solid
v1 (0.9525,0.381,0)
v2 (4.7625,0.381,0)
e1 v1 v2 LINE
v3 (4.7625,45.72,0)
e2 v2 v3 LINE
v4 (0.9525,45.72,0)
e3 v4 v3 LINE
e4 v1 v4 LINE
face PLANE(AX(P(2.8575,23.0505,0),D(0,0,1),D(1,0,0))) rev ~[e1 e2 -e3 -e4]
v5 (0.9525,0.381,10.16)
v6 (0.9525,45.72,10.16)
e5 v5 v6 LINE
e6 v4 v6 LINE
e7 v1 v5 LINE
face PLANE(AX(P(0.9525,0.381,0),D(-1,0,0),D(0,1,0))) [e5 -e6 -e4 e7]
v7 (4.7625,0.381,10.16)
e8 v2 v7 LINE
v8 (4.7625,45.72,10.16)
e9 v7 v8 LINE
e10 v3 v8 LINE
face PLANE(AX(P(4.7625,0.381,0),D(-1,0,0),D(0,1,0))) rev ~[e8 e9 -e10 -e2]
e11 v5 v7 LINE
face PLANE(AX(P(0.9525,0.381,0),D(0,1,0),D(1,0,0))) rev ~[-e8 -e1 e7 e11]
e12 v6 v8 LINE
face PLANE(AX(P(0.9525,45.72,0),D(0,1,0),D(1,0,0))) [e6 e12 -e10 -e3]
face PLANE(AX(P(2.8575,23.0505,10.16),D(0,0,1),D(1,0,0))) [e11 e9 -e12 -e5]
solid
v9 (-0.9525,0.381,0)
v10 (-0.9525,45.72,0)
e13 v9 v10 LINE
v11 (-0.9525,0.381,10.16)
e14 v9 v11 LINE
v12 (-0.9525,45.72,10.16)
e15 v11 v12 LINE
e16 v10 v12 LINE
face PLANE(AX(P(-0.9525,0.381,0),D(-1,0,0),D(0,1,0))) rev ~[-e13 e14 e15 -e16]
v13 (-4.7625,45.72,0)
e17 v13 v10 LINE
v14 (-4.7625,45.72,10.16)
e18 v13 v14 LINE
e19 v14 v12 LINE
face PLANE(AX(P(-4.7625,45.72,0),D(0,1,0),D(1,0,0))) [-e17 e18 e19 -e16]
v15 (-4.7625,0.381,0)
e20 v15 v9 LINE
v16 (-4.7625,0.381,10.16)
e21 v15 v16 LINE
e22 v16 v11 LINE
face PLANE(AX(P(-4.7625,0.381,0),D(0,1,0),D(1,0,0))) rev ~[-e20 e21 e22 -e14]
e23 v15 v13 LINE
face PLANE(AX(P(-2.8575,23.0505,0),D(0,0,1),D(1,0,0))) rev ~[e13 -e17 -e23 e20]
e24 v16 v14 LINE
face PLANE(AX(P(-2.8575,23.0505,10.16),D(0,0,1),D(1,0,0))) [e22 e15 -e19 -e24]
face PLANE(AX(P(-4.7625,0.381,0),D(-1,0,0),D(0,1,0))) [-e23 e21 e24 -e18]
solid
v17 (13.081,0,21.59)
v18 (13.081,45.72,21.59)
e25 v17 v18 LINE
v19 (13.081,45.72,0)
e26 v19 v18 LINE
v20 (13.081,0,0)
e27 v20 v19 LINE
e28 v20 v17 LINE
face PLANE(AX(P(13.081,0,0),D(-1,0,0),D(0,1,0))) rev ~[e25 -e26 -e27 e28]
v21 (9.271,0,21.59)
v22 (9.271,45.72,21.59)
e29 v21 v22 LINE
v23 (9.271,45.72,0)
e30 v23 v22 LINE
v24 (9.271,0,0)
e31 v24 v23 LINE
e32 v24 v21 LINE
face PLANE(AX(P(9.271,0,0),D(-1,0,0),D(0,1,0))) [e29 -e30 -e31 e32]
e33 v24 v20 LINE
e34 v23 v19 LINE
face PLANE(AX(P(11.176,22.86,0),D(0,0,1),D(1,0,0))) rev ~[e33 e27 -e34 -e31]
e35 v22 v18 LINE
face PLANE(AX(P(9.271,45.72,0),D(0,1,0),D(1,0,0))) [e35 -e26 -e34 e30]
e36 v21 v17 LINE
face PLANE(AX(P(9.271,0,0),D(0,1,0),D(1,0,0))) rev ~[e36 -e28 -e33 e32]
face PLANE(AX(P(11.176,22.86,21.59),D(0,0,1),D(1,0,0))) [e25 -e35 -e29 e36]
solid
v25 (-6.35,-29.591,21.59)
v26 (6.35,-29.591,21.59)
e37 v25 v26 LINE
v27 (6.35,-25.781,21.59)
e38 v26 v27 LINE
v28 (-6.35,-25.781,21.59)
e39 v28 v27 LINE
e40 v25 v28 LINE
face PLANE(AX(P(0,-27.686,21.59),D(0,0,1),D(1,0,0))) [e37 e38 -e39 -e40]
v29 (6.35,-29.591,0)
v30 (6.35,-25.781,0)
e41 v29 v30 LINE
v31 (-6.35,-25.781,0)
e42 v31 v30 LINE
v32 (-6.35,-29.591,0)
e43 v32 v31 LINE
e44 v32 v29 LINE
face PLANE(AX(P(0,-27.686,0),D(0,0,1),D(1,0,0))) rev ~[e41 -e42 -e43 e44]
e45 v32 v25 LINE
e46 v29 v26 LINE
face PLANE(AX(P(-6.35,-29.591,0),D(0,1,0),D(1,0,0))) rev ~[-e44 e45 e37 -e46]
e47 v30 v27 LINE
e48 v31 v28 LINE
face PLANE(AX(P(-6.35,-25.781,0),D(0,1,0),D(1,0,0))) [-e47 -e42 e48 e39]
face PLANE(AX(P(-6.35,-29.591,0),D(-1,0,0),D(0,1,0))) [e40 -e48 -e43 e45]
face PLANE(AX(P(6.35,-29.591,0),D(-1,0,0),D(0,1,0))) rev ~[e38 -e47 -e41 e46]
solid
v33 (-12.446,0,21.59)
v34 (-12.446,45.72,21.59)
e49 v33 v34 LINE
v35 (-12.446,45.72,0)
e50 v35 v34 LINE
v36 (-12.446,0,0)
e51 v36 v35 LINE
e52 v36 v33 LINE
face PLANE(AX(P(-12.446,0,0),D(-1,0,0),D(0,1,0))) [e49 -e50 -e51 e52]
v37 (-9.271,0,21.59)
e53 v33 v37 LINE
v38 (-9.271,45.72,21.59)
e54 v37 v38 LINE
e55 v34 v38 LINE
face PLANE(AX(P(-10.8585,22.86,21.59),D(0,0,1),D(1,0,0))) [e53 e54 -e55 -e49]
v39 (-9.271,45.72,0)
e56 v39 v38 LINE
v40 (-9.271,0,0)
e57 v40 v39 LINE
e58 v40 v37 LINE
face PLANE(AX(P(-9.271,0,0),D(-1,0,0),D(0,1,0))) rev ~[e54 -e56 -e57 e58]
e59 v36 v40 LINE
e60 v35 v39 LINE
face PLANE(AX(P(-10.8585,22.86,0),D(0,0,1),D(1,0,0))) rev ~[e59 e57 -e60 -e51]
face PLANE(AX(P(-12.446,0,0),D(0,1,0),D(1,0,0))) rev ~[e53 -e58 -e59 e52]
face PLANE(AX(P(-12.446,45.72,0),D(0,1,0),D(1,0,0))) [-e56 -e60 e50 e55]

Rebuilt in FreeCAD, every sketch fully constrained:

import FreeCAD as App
import Part
import Sketcher

V = App.Vector
Q = App.Units.Quantity

doc = App.newDocument("Part")
body = doc.addObject("PartDesign::Body", "Body")
body.AllowCompound = True

# Sketch on XY plane
sketch1 = body.newObject("Sketcher::SketchObject", "Sketch")
sketch1.AttachmentSupport = (doc.getObject("XY_Plane"), [""])
sketch1.MapMode = "FlatFace"
sketch1.addGeometry([
    Part.LineSegment(V(-6.3, -25.8, 0), V(-6.3, -29.6, 0)),  # 0
    Part.LineSegment(V(-6.3, -29.6, 0), V(6.3, -29.6, 0)),  # 1
    Part.LineSegment(V(6.3, -29.6, 0), V(6.3, -25.8, 0)),  # 2
    Part.LineSegment(V(6.3, -25.8, 0), V(-6.3, -25.8, 0)),  # 3
    Part.LineSegment(V(-12.4, 45.7, 0), V(-12.4, 0, 0)),  # 4
    Part.LineSegment(V(-12.4, 0, 0), V(-9.3, 0, 0)),  # 5
    Part.LineSegment(V(-9.3, 0, 0), V(-9.3, 45.7, 0)),  # 6
    Part.LineSegment(V(-9.3, 45.7, 0), V(-12.4, 45.7, 0)),  # 7
    Part.LineSegment(V(9.3, 45.7, 0), V(9.3, 0, 0)),  # 8
    Part.LineSegment(V(9.3, 0, 0), V(13.1, 0, 0)),  # 9
    Part.LineSegment(V(13.1, 0, 0), V(13.1, 45.7, 0)),  # 10
    Part.LineSegment(V(13.1, 45.7, 0), V(9.3, 45.7, 0)),  # 11
], False)
sketch1.addConstraint([
    Sketcher.Constraint("Coincident", 0, 2, 1, 1),
    Sketcher.Constraint("Coincident", 1, 2, 2, 1),
    Sketcher.Constraint("Coincident", 2, 2, 3, 1),
    Sketcher.Constraint("Coincident", 3, 2, 0, 1),
    Sketcher.Constraint("Coincident", 4, 2, 5, 1),
    Sketcher.Constraint("Coincident", 5, 2, 6, 1),
    Sketcher.Constraint("Coincident", 6, 2, 7, 1),
    Sketcher.Constraint("Coincident", 7, 2, 4, 1),
    Sketcher.Constraint("Coincident", 8, 2, 9, 1),
    Sketcher.Constraint("Coincident", 9, 2, 10, 1),
    Sketcher.Constraint("Coincident", 10, 2, 11, 1),
    Sketcher.Constraint("Coincident", 11, 2, 8, 1),
    Sketcher.Constraint("Vertical", 0),
    Sketcher.Constraint("Horizontal", 1),
    Sketcher.Constraint("Vertical", 2),
    Sketcher.Constraint("Horizontal", 3),
    Sketcher.Constraint("Vertical", 4),
    Sketcher.Constraint("Horizontal", 5),
    Sketcher.Constraint("Vertical", 6),
    Sketcher.Constraint("Horizontal", 7),
    Sketcher.Constraint("Vertical", 8),
    Sketcher.Constraint("Horizontal", 9),
    Sketcher.Constraint("Vertical", 10),
    Sketcher.Constraint("Horizontal", 11),
    Sketcher.Constraint("Symmetric", 5, 2, 8, 2, -1, 1),
    Sketcher.Constraint("PointOnObject", 4, 2, -1),
    Sketcher.Constraint("Horizontal", 7, 2, 10, 2),
    Sketcher.Constraint("Equal", 11, 0),
    Sketcher.Constraint("DistanceX", 1, 1, 1, 2, Q("0.5 in")),
    Sketcher.Constraint("DistanceY", 4, 2, 4, 1, Q("1.8 in")),
    Sketcher.Constraint("DistanceX", 9, 1, 9, 2, Q("0.15 in")),
    Sketcher.Constraint("DistanceX", 5, 1, 5, 2, Q("0.125 in")),
    Sketcher.Constraint("DistanceX", 0, 2, -1, 1, Q("0.25 in")),
    Sketcher.Constraint("DistanceX", 4, 2, -1, 1, Q("0.49 in")),
    Sketcher.Constraint("DistanceY", 0, 2, -1, 1, Q("1.165 in")),
])
pad1 = body.newObject("PartDesign::Pad", "Pad")
pad1.Profile = sketch1
pad1.Length = Q("0.85 in")
body2 = doc.addObject("PartDesign::Body", "Body001")
body2.AllowCompound = True

# Sketch on XY plane
sketch2 = body2.newObject("Sketcher::SketchObject", "Sketch001")
sketch2.AttachmentSupport = (doc.getObject("XY_Plane001"), [""])
sketch2.MapMode = "FlatFace"
sketch2.addGeometry([
    Part.LineSegment(V(-4.8, 45.7, 0), V(-4.8, 0.4, 0)),  # 0
    Part.LineSegment(V(-4.8, 0.4, 0), V(-1, 0.4, 0)),  # 1
    Part.LineSegment(V(-1, 0.4, 0), V(-1, 45.7, 0)),  # 2
    Part.LineSegment(V(-1, 45.7, 0), V(-4.8, 45.7, 0)),  # 3
    Part.LineSegment(V(1, 45.7, 0), V(1, 0.4, 0)),  # 4
    Part.LineSegment(V(1, 0.4, 0), V(4.8, 0.4, 0)),  # 5
    Part.LineSegment(V(4.8, 0.4, 0), V(4.8, 45.7, 0)),  # 6
    Part.LineSegment(V(4.8, 45.7, 0), V(1, 45.7, 0)),  # 7
], False)
sketch2.addConstraint([
    Sketcher.Constraint("Coincident", 0, 2, 1, 1),
    Sketcher.Constraint("Coincident", 1, 2, 2, 1),
    Sketcher.Constraint("Coincident", 2, 2, 3, 1),
    Sketcher.Constraint("Coincident", 3, 2, 0, 1),
    Sketcher.Constraint("Coincident", 4, 2, 5, 1),
    Sketcher.Constraint("Coincident", 5, 2, 6, 1),
    Sketcher.Constraint("Coincident", 6, 2, 7, 1),
    Sketcher.Constraint("Coincident", 7, 2, 4, 1),
    Sketcher.Constraint("Vertical", 0),
    Sketcher.Constraint("Horizontal", 1),
    Sketcher.Constraint("Vertical", 2),
    Sketcher.Constraint("Horizontal", 3),
    Sketcher.Constraint("Vertical", 4),
    Sketcher.Constraint("Horizontal", 5),
    Sketcher.Constraint("Vertical", 6),
    Sketcher.Constraint("Horizontal", 7),
    Sketcher.Constraint("Symmetric", 1, 2, 4, 2, -2),
    Sketcher.Constraint("Symmetric", 3, 2, 6, 2, -2),
    Sketcher.Constraint("DistanceX", 1, 1, 1, 2, Q("0.15 in")),
    Sketcher.Constraint("DistanceY", -1, 1, 2, 2, Q("1.8 in")),
    Sketcher.Constraint("DistanceY", 0, 2, 0, 1, Q("1.785 in")),
    Sketcher.Constraint("DistanceX", 0, 2, -1, 1, Q("0.1875 in")),
])
pad2 = body2.newObject("PartDesign::Pad", "Pad001")
pad2.Profile = sketch2
pad2.Length = Q("0.4 in")

doc.recompute()
